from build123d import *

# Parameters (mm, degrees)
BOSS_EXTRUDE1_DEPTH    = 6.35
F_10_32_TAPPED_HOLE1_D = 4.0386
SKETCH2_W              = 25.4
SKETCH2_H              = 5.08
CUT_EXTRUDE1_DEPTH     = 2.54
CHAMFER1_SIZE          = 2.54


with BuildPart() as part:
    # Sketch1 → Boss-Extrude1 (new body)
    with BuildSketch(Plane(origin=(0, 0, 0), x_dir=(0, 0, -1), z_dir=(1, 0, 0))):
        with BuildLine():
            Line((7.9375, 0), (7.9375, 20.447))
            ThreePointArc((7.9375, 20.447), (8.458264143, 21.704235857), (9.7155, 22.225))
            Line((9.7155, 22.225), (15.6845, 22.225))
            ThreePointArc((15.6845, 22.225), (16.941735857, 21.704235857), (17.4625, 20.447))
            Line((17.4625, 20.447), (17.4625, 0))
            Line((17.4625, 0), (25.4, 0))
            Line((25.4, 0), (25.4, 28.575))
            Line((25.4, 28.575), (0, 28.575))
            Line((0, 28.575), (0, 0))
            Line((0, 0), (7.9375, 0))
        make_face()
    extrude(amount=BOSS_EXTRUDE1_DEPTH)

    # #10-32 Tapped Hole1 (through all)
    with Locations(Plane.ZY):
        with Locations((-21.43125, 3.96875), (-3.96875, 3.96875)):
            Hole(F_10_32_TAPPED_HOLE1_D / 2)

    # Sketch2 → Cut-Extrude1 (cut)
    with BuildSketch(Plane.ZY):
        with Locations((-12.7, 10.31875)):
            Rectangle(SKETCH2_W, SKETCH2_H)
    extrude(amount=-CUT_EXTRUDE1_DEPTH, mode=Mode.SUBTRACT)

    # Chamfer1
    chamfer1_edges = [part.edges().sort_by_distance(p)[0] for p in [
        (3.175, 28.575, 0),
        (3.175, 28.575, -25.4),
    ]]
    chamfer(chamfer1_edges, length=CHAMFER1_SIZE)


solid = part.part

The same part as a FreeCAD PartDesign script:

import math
import FreeCAD as App
import Part
import Sketcher
from FreeCAD import Vector
Q = App.Units.Quantity


def edges_at(feature, points):
    """Names of the edges that pass closest to the given points."""
    edges = feature.Shape.Edges
    near = lambda p: min(range(len(edges)), key=lambda i: edges[i].distToShape(Part.Vertex(*p))[0])
    return sorted({f"Edge{near(p) + 1}" for p in points})


def add_polygon(sketch, points):
    """Adds a closed chain of lines whose ends are joined by coincident constraints."""
    first, n = sketch.GeometryCount, len(points)
    for a, b in zip(points, points[1:] + points[:1]):
        sketch.addGeometry(Part.LineSegment(App.Vector(*a, 0), App.Vector(*b, 0)), False)
    for i in range(n):
        sketch.addConstraint(Sketcher.Constraint("Coincident", first + i, 2, first + (i + 1) % n, 1))

doc = App.newDocument("Part")
params = doc.addObject("Spreadsheet::Sheet", "Params")
for row, (alias, value) in enumerate([
    ("sketch1_height", "1 in"),
    ("sketch1_radius", "0.07 in"),
    ("sketch1_width", "0.805 in"),
    ("sketch1_width2", "1.125 in"),
    ("sketch1_height2", "0.235 in"),
    ("pad1_length", "0.25 in"),
    ("sketch2_diameter", "0.159 in"),
    ("hole_diameter", "0.159 in"),
    ("sketch3_height", "1 in"),
    ("sketch3_width", "0.2 in"),
    ("pocket1_length", "0.1 in"),
    ("chamfer_size", "0.1 in"),
], start=1):
    params.set(f"A{row}", alias)
    params.set(f"B{row}", "=" + value)
    params.setAlias(f"B{row}", alias)

body = doc.addObject("PartDesign::Body", "Body")

sketch1 = body.newObject("Sketcher::SketchObject", "Sketch")
sketch1.AttachmentSupport = (doc.getObject("YZ_Plane"), [""])
sketch1.MapMode = "FlatFace"
sketch1.addGeometry([
    Part.LineSegment(Vector(0, -7.9, 0), Vector(20.4, -7.9, 0)),
    Part.ArcOfCircle(Part.Circle(Vector(20.4, -9.7, 0), Vector(0, 0, 1), 1.8), math.radians(0), math.radians(90)),
    Part.LineSegment(Vector(22.2, -9.7, 0), Vector(22.2, -15.7, 0)),
    Part.ArcOfCircle(Part.Circle(Vector(20.4, -15.7, 0), Vector(0, 0, 1), 1.8), math.radians(-90), math.radians(0)),
    Part.LineSegment(Vector(20.4, -17.5, 0), Vector(0, -17.5, 0)),
    Part.LineSegment(Vector(0, -17.5, 0), Vector(0, -25.4, 0)),
    Part.LineSegment(Vector(0, -25.4, 0), Vector(28.6, -25.4, 0)),
    Part.LineSegment(Vector(28.6, -25.4, 0), Vector(28.6, 0, 0)),
    Part.LineSegment(Vector(28.6, 0, 0), Vector(0, 0, 0)),
    Part.LineSegment(Vector(0, 0, 0), Vector(0, -7.9, 0)),
], False)
sketch1.addConstraint([
    Sketcher.Constraint("Tangent", 0, 2, 1, 2),
    Sketcher.Constraint("Tangent", 1, 1, 2, 1),
    Sketcher.Constraint("Tangent", 2, 2, 3, 2),
    Sketcher.Constraint("Tangent", 3, 1, 4, 1),
    Sketcher.Constraint("Coincident", 4, 2, 5, 1),
    Sketcher.Constraint("Coincident", 5, 2, 6, 1),
    Sketcher.Constraint("Coincident", 6, 2, 7, 1),
    Sketcher.Constraint("Coincident", 7, 2, 8, 1),
    Sketcher.Constraint("Coincident", 8, 2, 9, 1),
    Sketcher.Constraint("Coincident", 9, 2, 0, 1),
    Sketcher.Constraint("Horizontal", 0),
    Sketcher.Constraint("Vertical", 2),
    Sketcher.Constraint("Horizontal", 4),
    Sketcher.Constraint("Vertical", 5),
    Sketcher.Constraint("Horizontal", 6),
    Sketcher.Constraint("Vertical", 7),
    Sketcher.Constraint("Horizontal", 8),
    Sketcher.Constraint("Vertical", 9),
    Sketcher.Constraint("Coincident", 8, 2, -1, 1),
    Sketcher.Constraint("Equal", 1, 3),
    Sketcher.Constraint("PointOnObject", 4, 2, -2),
    Sketcher.Constraint("Equal", 5, 9),
    Sketcher.Constraint("DistanceY", 7, 1, 7, 2, Q("1 in")),
    Sketcher.Constraint("Radius", 1, Q("0.07 in")),
    Sketcher.Constraint("DistanceX", 0, 1, 0, 2, Q("0.805 in")),
    Sketcher.Constraint("DistanceX", 6, 1, 6, 2, Q("1.125 in")),
    Sketcher.Constraint("DistanceY", 2, 2, 2, 1, Q("0.235 in")),
])
sketch1.setExpression("Constraints[22]", "Params.sketch1_height")
sketch1.setExpression("Constraints[23]", "Params.sketch1_radius")
sketch1.setExpression("Constraints[24]", "Params.sketch1_width")
sketch1.setExpression("Constraints[25]", "Params.sketch1_width2")
sketch1.setExpression("Constraints[26]", "Params.sketch1_height2")
pad1 = body.newObject("PartDesign::Pad", "Pad")
pad1.Profile = sketch1
pad1.setExpression("Length", "Params.pad1_length")

sketch2 = body.newObject("Sketcher::SketchObject", "Sketch001")
sketch2.AttachmentSupport = (doc.getObject("YZ_Plane"), [""])
sketch2.MapMode = "FlatFace"
sketch2.addGeometry([
    Part.Circle(Vector(4, -21.4, 0), Vector(0, 0, 1), 2),
    Part.Circle(Vector(4, -4, 0), Vector(0, 0, 1), 2),
], False)
sketch2.addConstraint([
    Sketcher.Constraint("Equal", 0, 1),
    Sketcher.Constraint("Vertical", 0, 3, 1, 3),
    Sketcher.Constraint("Diameter", 0, Q("0.159 in")),
    Sketcher.Constraint("DistanceX", -1, 1, 0, 3, Q("0.15625 in")),
    Sketcher.Constraint("DistanceY", 0, 3, -1, 1, Q("0.84375 in")),
    Sketcher.Constraint("DistanceY", 1, 3, -1, 1, Q("0.15625 in")),
])
sketch2.setExpression("Constraints[2]", "Params.sketch2_diameter")
doc.recompute()
hole = body.newObject("PartDesign::Hole", "Hole")
hole.Profile = sketch2
hole.ThreadType = "None"
hole.setExpression("Diameter", "Params.hole_diameter")
hole.DepthType = "ThroughAll"
hole.Reversed = True

sketch3 = body.newObject("Sketcher::SketchObject", "Sketch002")
sketch3.AttachmentSupport = (doc.getObject("YZ_Plane"), [""])
sketch3.MapMode = "FlatFace"
add_polygon(sketch3, [(13, -25), (8, -25), (8, 0), (13, 0)])
sketch3.addConstraint([
    Sketcher.Constraint("Horizontal", 0),
    Sketcher.Constraint("Vertical", 1),
    Sketcher.Constraint("Horizontal", 2),
    Sketcher.Constraint("Vertical", 3),
    Sketcher.Constraint("PointOnObject", 1, 2, -1),
    Sketcher.Constraint("DistanceY", 1, 1, 1, 2, Q("1 in")),
    Sketcher.Constraint("DistanceX", 0, 2, 0, 1, Q("0.2 in")),
    Sketcher.Constraint("DistanceX", -1, 1, 0, 2, 7.77875),
])
sketch3.setExpression("Constraints[9]", "Params.sketch3_height")
sketch3.setExpression("Constraints[10]", "Params.sketch3_width")
pocket1 = body.newObject("PartDesign::Pocket", "Pocket")
pocket1.Profile = sketch3
pocket1.setExpression("Length", "Params.pocket1_length")
pocket1.Reversed = True
doc.recompute()

chamfer = body.newObject("PartDesign::Chamfer", "Chamfer")
chamfer.Base = (pocket1, edges_at(pocket1, [(3.175, 28.575, 0), (3.175, 28.575, -25.4)]))
chamfer.setExpression("Size", "Params.chamfer_size")

doc.recompute()
